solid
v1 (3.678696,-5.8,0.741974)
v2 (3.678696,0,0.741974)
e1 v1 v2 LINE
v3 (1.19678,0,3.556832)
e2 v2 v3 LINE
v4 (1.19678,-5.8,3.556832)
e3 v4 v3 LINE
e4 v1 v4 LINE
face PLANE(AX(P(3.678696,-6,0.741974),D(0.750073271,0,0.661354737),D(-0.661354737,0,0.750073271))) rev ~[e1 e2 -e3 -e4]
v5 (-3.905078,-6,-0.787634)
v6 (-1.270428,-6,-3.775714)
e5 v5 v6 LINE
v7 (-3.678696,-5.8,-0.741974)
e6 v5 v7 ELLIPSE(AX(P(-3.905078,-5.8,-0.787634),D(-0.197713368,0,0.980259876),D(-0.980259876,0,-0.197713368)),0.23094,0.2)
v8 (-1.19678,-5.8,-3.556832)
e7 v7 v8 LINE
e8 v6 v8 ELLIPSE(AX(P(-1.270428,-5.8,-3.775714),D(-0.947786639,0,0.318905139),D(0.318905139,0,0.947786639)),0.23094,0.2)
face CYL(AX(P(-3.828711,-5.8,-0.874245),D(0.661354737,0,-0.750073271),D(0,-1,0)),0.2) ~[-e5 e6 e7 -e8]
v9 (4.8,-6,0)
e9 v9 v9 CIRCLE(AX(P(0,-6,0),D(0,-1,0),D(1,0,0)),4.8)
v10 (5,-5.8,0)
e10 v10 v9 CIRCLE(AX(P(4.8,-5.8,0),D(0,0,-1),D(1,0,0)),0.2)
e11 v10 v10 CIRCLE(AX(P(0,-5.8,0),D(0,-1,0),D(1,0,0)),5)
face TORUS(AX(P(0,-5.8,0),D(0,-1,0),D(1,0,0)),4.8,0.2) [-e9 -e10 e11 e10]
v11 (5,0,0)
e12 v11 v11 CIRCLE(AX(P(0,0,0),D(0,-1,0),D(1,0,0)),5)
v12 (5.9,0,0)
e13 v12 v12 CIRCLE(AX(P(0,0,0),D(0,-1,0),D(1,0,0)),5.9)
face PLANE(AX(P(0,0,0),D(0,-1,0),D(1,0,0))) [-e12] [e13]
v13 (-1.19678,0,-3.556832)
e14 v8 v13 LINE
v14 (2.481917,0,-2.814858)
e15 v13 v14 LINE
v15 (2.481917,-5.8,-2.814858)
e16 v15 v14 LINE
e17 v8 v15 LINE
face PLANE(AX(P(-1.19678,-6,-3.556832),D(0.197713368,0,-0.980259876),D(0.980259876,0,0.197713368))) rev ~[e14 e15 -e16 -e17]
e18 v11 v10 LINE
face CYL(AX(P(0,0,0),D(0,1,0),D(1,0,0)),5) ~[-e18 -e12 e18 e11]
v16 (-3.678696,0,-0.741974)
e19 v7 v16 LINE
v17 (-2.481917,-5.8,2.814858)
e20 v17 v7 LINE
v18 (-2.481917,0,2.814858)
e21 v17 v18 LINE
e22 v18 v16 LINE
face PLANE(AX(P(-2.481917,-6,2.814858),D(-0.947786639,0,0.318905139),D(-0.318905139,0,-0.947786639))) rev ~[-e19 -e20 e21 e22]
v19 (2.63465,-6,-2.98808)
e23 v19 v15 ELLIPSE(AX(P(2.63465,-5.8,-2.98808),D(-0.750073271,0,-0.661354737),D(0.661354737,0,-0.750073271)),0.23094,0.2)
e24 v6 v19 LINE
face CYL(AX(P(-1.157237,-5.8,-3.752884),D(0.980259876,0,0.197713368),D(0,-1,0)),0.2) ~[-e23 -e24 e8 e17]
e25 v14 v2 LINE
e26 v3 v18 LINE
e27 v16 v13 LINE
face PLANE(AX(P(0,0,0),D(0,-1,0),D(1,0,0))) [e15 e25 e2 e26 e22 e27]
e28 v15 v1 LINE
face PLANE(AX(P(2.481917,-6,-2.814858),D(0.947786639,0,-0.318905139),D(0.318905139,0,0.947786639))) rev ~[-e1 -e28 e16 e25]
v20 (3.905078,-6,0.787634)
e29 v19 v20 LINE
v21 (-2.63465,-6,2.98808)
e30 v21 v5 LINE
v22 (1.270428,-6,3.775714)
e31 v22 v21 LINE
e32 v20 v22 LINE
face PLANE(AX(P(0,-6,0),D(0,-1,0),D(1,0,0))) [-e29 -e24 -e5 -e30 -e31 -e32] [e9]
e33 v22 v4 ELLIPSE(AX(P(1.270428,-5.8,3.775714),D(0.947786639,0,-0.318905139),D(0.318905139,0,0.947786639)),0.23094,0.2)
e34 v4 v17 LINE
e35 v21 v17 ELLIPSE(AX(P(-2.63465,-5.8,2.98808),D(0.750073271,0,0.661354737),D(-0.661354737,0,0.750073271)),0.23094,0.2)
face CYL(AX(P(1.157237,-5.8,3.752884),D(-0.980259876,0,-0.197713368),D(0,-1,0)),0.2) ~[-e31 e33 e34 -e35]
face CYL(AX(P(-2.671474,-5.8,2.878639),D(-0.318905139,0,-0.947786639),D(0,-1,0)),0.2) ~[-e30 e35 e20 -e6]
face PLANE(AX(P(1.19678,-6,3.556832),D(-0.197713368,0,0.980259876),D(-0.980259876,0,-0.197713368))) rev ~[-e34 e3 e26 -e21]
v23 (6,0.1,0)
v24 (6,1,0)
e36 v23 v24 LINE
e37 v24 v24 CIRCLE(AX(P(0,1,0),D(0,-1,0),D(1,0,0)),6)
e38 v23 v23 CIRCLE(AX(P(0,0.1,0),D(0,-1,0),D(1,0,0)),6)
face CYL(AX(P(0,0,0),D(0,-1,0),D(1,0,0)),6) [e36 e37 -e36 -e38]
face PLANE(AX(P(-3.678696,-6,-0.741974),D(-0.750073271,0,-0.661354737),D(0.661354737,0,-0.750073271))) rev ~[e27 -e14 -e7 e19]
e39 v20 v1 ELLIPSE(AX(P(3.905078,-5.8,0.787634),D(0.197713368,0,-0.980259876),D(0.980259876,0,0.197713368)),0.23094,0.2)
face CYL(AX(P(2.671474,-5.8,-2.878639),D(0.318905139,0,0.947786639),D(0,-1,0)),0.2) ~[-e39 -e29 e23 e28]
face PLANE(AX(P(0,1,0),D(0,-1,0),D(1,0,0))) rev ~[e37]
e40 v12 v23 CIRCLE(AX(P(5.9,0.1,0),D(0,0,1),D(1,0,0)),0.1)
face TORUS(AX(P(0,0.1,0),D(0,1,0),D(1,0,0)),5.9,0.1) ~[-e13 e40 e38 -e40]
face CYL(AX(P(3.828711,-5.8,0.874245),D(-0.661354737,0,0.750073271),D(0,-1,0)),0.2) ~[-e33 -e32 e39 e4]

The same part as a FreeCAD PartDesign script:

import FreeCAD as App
import Part
import Sketcher
from FreeCAD import Vector
Q = App.Units.Quantity


def edges_at(feature, points):
    """Names of the edges that pass closest to the given points."""
    edges = feature.Shape.Edges
    near = lambda p: min(range(len(edges)), key=lambda i: edges[i].distToShape(Part.Vertex(*p))[0])
    return sorted({f"Edge{near(p) + 1}" for p in points})

doc = App.newDocument("Part")
body = doc.addObject("PartDesign::Body", "Body")

sketch1 = doc.addObject("Sketcher::SketchObject", "Sketch")
body.addObject(sketch1)
sketch1.AttachmentSupport = (doc.XZ_Plane, [""])
sketch1.MapMode = "FlatFace"
sketch1.addGeometry(Part.Circle(Vector(0, 0, 0), Vector(0, 0, 1), 6), False)
sketch1.addConstraint([
    Sketcher.Constraint("Coincident", 0, 3, -1, 1),
    Sketcher.Constraint("Diameter", 0, Q("12 mm")),
])
pad1 = doc.addObject("PartDesign::Pad", "Pad")
body.addObject(pad1)
pad1.Profile = sketch1
pad1.Length = 1
pad1.Reversed = True

sketch2 = doc.addObject("Sketcher::SketchObject", "Sketch001")
body.addObject(sketch2)
sketch2.AttachmentSupport = (doc.XZ_Plane, [""])
sketch2.MapMode = "FlatFace"
sketch2.addGeometry(Part.Circle(Vector(0, 0, 0), Vector(0, 0, 1), 5), False)
sketch2.addConstraint([
    Sketcher.Constraint("Coincident", 0, 3, -1, 1),
    Sketcher.Constraint("Diameter", 0, Q("10 mm")),
])
pad2 = doc.addObject("PartDesign::Pad", "Pad001")
body.addObject(pad2)
pad2.Profile = sketch2
pad2.Length = 6

sketch3 = doc.addObject("Sketcher::SketchObject", "Sketch002")
body.addObject(sketch3)
sketch3.AttachmentSupport = (doc.XZ_Plane, [""])
sketch3.MapMode = "FlatFace"
sketch3.AttachmentOffset = App.Placement(Vector(0, 0, 6), App.Rotation())
sketch3.addGeometry([
    Part.LineSegment(Vector(3.7, 0.7, 0), Vector(1.2, 3.6, 0)),
    Part.LineSegment(Vector(1.2, 3.6, 0), Vector(-2.5, 2.8, 0)),
    Part.LineSegment(Vector(-2.5, 2.8, 0), Vector(-3.7, -0.7, 0)),
    Part.LineSegment(Vector(-3.7, -0.7, 0), Vector(-1.2, -3.6, 0)),
    Part.LineSegment(Vector(-1.2, -3.6, 0), Vector(2.5, -2.8, 0)),
    Part.LineSegment(Vector(2.5, -2.8, 0), Vector(3.7, 0.7, 0)),
], False)
sketch3.addConstraint([
    Sketcher.Constraint("Coincident", 0, 2, 1, 1),
    Sketcher.Constraint("Coincident", 1, 2, 2, 1),
    Sketcher.Constraint("Coincident", 2, 2, 3, 1),
    Sketcher.Constraint("Coincident", 3, 2, 4, 1),
    Sketcher.Constraint("Coincident", 4, 2, 5, 1),
    Sketcher.Constraint("Coincident", 5, 2, 0, 1),
    Sketcher.Constraint("Symmetric", 0, 2, 3, 2, -1, 1),
    Sketcher.Constraint("Symmetric", 1, 2, 4, 2, -1, 1),
    Sketcher.Constraint("Symmetric", 2, 2, 5, 2, -1, 1),
    Sketcher.Constraint("Equal", 0, 1),
    Sketcher.Constraint("Equal", 1, 2),
    Sketcher.Constraint("DistanceX", -1, 1, 0, 2, Q("1.19678 mm")),
    Sketcher.Constraint("DistanceY", -1, 1, 0, 2, Q("3.556832 mm")),
    Sketcher.Constraint("DistanceX", 2, 2, 1, 2, Q("1.19678 mm")),
    Sketcher.Constraint("DistanceY", 2, 2, 1, 2, Q("3.556832 mm")),
])
pocket1 = doc.addObject("PartDesign::Pocket", "Pocket")
body.addObject(pocket1)
pocket1.Profile = sketch3
pocket1.Length = 6
doc.recompute()

fillet = doc.addObject("PartDesign::Fillet", "Fillet")
body.addObject(fillet)
fillet.Base = (pocket1, edges_at(pocket1, [
    (-5, -6, 0),
    (0.643, -6, -3.186),
    (3.08, -6, -1.036),
    (2.438, -6, 2.149),
    (-0.643, -6, 3.186),
    (-3.08, -6, 1.036),
    (-2.438, -6, -2.149),
]))
fillet.Radius = 0.2
doc.recompute()

fillet2 = doc.addObject("PartDesign::Fillet", "Fillet001")
body.addObject(fillet2)
fillet2.Base = (fillet, edges_at(fillet, [(-6, 0, 0)]))
fillet2.Radius = 0.1

doc.recompute()
